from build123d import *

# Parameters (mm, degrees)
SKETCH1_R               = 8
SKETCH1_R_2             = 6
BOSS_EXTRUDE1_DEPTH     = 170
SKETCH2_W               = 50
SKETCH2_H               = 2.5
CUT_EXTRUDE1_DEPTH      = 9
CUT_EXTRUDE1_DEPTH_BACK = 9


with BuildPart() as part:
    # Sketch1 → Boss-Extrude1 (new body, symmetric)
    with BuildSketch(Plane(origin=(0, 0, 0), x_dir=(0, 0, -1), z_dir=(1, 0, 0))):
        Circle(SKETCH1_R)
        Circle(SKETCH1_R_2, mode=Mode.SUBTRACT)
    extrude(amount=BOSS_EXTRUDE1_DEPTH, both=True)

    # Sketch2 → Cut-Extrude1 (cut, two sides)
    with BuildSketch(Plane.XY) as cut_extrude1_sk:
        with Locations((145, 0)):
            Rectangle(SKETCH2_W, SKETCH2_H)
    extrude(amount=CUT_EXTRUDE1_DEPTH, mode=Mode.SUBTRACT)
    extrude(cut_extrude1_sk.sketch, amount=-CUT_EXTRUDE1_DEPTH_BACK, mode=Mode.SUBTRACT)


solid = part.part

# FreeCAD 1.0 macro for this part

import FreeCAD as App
import Part
import Sketcher


def add_polygon(sketch, points):
    """Adds a closed chain of lines whose ends are joined by coincident constraints."""
    first, n = sketch.GeometryCount, len(points)
    for a, b in zip(points, points[1:] + points[:1]):
        sketch.addGeometry(Part.LineSegment(App.Vector(*a, 0), App.Vector(*b, 0)), False)
    for i in range(n):
        sketch.addConstraint(Sketcher.Constraint("Coincident", first + i, 2, first + (i + 1) % n, 1))

doc = App.newDocument("Part")
params = doc.addObject("Spreadsheet::Sheet", "Params")
for row, (alias, value) in enumerate([
    ("sketch1_diameter", "16 mm"),
    ("sketch1_diameter2", "12 mm"),
    ("pad1_length", "340 mm"),
    ("sketch2_width", "50 mm"),
    ("sketch2_height", "2.5 mm"),
], start=1):
    params.set(f"A{row}", alias)
    params.set(f"B{row}", "=" + value)
    params.setAlias(f"B{row}", alias)

body = doc.addObject("PartDesign::Body", "Body")

# Sketch on YZ plane
sketch1 = doc.addObject("Sketcher::SketchObject", "Sketch")
body.addObject(sketch1)
sketch1.AttachmentSupport = (doc.YZ_Plane, [""])
sketch1.MapMode = "FlatFace"
sketch1.addGeometry(Part.Circle(App.Vector(0, 0, 0), App.Vector(0, 0, 1), 8), False)
sketch1.addGeometry(Part.Circle(App.Vector(0, 0, 0), App.Vector(0, 0, 1), 6), False)
sketch1.addConstraint(Sketcher.Constraint("Coincident", 0, 3, -1, 1))
sketch1.addConstraint(Sketcher.Constraint("Coincident", 1, 3, -1, 1))
sketch1.addConstraint(Sketcher.Constraint("Diameter", 0, 16.0))
sketch1.addConstraint(Sketcher.Constraint("Diameter", 1, 12.0))
sketch1.setExpression("Constraints[2]", "Params.sketch1_diameter")
sketch1.setExpression("Constraints[3]", "Params.sketch1_diameter2")
pad1 = doc.addObject("PartDesign::Pad", "Pad")
body.addObject(pad1)
pad1.Profile = sketch1
pad1.setExpression("Length", "Params.pad1_length")
pad1.Midplane = True

# Sketch on XY plane
sketch2 = doc.addObject("Sketcher::SketchObject", "Sketch001")
body.addObject(sketch2)
sketch2.AttachmentSupport = (doc.XY_Plane, [""])
sketch2.MapMode = "FlatFace"
add_polygon(sketch2, [(120, 1.2), (120, -1.2), (170, -1.2), (170, 1.2)])  # lines 0-3
sketch2.addConstraint(Sketcher.Constraint("Vertical", 0))
sketch2.addConstraint(Sketcher.Constraint("Horizontal", 1))
sketch2.addConstraint(Sketcher.Constraint("Vertical", 2))
sketch2.addConstraint(Sketcher.Constraint("Horizontal", 3))
sketch2.addConstraint(Sketcher.Constraint("DistanceX", 1, 1, 1, 2, 50.0))
sketch2.addConstraint(Sketcher.Constraint("DistanceY", 0, 2, 0, 1, 2.5))
sketch2.addConstraint(Sketcher.Constraint("DistanceX", -1, 1, 0, 2, 120.0))
sketch2.addConstraint(Sketcher.Constraint("DistanceY", 0, 2, -1, 1, 1.25))
sketch2.setExpression("Constraints[8]", "Params.sketch2_width")
sketch2.setExpression("Constraints[9]", "Params.sketch2_height")
pocket1 = doc.addObject("PartDesign::Pocket", "Pocket")
body.addObject(pocket1)
pocket1.Profile = sketch2
pocket1.Type = "ThroughAll"
pocket1.Midplane = True

doc.recompute()
